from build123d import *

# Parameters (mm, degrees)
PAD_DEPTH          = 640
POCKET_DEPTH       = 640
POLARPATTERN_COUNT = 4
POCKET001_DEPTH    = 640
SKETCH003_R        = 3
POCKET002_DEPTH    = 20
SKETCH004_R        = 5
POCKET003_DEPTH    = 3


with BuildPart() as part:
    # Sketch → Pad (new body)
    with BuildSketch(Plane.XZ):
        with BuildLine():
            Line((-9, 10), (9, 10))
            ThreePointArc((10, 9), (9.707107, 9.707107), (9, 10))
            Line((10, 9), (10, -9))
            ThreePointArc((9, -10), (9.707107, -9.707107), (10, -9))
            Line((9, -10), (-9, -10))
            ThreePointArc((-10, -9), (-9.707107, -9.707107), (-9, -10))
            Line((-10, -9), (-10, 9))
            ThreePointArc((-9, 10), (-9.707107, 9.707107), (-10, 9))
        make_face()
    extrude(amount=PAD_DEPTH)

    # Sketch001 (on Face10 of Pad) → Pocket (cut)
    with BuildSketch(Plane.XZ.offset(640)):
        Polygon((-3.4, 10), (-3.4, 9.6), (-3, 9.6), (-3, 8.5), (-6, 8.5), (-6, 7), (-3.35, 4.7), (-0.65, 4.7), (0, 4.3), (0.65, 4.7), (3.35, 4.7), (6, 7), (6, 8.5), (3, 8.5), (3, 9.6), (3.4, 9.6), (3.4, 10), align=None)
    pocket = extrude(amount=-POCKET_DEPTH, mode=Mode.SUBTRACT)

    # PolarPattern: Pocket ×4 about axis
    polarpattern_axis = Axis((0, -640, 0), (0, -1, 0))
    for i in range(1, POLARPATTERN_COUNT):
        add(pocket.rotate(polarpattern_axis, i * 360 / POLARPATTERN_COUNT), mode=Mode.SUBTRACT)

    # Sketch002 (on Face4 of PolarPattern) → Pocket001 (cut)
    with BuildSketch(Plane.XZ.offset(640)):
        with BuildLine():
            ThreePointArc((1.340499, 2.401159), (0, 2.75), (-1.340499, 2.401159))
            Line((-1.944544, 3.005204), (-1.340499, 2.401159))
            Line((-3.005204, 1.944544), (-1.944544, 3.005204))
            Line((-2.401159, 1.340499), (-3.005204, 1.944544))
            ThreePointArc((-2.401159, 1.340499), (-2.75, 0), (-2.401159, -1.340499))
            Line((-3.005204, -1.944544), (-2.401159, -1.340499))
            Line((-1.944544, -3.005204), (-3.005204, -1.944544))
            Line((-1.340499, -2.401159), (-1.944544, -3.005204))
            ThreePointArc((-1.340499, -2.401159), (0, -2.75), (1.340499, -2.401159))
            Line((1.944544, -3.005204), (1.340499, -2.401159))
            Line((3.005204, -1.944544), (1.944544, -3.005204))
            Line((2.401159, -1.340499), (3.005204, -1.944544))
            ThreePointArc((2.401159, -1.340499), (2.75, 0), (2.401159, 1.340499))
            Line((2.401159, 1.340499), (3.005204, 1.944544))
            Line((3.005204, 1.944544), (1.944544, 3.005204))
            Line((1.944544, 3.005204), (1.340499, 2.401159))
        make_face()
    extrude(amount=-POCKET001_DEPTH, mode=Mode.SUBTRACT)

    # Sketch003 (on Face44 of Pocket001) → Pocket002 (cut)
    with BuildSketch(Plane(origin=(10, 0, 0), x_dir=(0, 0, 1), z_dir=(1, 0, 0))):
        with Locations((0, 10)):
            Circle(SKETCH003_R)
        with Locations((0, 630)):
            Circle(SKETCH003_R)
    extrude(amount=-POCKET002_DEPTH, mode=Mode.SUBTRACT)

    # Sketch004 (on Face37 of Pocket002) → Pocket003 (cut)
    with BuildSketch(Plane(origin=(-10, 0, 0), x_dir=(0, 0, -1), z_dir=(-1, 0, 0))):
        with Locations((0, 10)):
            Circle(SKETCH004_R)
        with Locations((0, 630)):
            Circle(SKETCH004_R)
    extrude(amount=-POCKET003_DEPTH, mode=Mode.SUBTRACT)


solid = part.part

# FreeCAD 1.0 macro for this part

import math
import FreeCAD as App
import Part
import Sketcher
from FreeCAD import Vector
Q = App.Units.Quantity


def add_polygon(sketch, points):
    """Adds a closed chain of lines whose ends are joined by coincident constraints."""
    first, n = sketch.GeometryCount, len(points)
    for a, b in zip(points, points[1:] + points[:1]):
        sketch.addGeometry(Part.LineSegment(App.Vector(*a, 0), App.Vector(*b, 0)), False)
    for i in range(n):
        sketch.addConstraint(Sketcher.Constraint("Coincident", first + i, 2, first + (i + 1) % n, 1))

doc = App.newDocument("Part")
body = doc.addObject("PartDesign::Body", "Body")

# Sketch on XZ plane
sketch1 = doc.addObject("Sketcher::SketchObject", "Sketch")
body.addObject(sketch1)
sketch1.AttachmentSupport = (doc.XZ_Plane, [""])
sketch1.MapMode = "FlatFace"
sketch1.addGeometry([
    Part.LineSegment(Vector(9, 10, 0), Vector(-9, 10, 0)),  # 0
    Part.ArcOfCircle(Part.Circle(Vector(-9.000001, 9.000001, 0), Vector(0, 0, 1), 0.999999), math.radians(89.999957), math.radians(180.000043)),  # 1
    Part.LineSegment(Vector(-10, 9, 0), Vector(-10, -9, 0)),  # 2
    Part.ArcOfCircle(Part.Circle(Vector(-9.000001, -9.000001, 0), Vector(0, 0, 1), 0.999999), math.radians(179.999957), math.radians(270.000043)),  # 3
    Part.LineSegment(Vector(-9, -10, 0), Vector(9, -10, 0)),  # 4
    Part.ArcOfCircle(Part.Circle(Vector(9.000001, -9.000001, 0), Vector(0, 0, 1), 0.999999), math.radians(-90.000043), math.radians(0.000043)),  # 5
    Part.LineSegment(Vector(10, -9, 0), Vector(10, 9, 0)),  # 6
    Part.ArcOfCircle(Part.Circle(Vector(9.000001, 9.000001, 0), Vector(0, 0, 1), 0.999999), math.radians(-0.000043), math.radians(90.000043)),  # 7
], False)
sketch1.addConstraint([
    Sketcher.Constraint("Tangent", 0, 2, 1, 1),
    Sketcher.Constraint("Tangent", 1, 2, 2, 1),
    Sketcher.Constraint("Tangent", 2, 2, 3, 1),
    Sketcher.Constraint("Tangent", 3, 2, 4, 1),
    Sketcher.Constraint("Tangent", 4, 2, 5, 1),
    Sketcher.Constraint("Tangent", 5, 2, 6, 1),
    Sketcher.Constraint("Tangent", 6, 2, 7, 1),
    Sketcher.Constraint("Tangent", 7, 2, 0, 1),
    Sketcher.Constraint("Horizontal", 0),
    Sketcher.Constraint("Vertical", 2),
    Sketcher.Constraint("Horizontal", 4),
    Sketcher.Constraint("Vertical", 6),
    Sketcher.Constraint("Equal", 1, 3),
    Sketcher.Constraint("Equal", 3, 5),
    Sketcher.Constraint("Equal", 5, 7),
    Sketcher.Constraint("Symmetric", 1, 3, 5, 3, -1, 1),
    Sketcher.Constraint("Equal", 4, 2),
    Sketcher.Constraint("Radius", 1, Q("0.999999 mm")),
    Sketcher.Constraint("DistanceX", 0, 2, 0, 1, Q("18 mm")),
])
pad1 = doc.addObject("PartDesign::Pad", "Pad")
body.addObject(pad1)
pad1.Profile = sketch1
pad1.Length = 640

# Sketch on XZ plane
sketch2 = doc.addObject("Sketcher::SketchObject", "Sketch001")
body.addObject(sketch2)
sketch2.AttachmentSupport = (doc.XZ_Plane, [""])
sketch2.MapMode = "FlatFace"
sketch2.AttachmentOffset = App.Placement(Vector(0, 0, 640), App.Rotation())
add_polygon(sketch2, [(-3.4, 10), (-3.4, 9.6), (-3, 9.6), (-3, 8.5), (-6, 8.5), (-6, 7), (-3.35, 4.7), (-0.65, 4.7), (0, 4.3), (0.65, 4.7), (3.35, 4.7), (6, 7), (6, 8.5), (3, 8.5), (3, 9.6), (3.4, 9.6), (3.4, 10)])  # lines 0-16
sketch2.addConstraint([
    Sketcher.Constraint("Vertical", 0),
    Sketcher.Constraint("Horizontal", 1),
    Sketcher.Constraint("Vertical", 2),
    Sketcher.Constraint("Horizontal", 3),
    Sketcher.Constraint("Vertical", 4),
    Sketcher.Constraint("Horizontal", 6),
    Sketcher.Constraint("Horizontal", 9),
    Sketcher.Constraint("Vertical", 11),
    Sketcher.Constraint("Horizontal", 12),
    Sketcher.Constraint("Vertical", 13),
    Sketcher.Constraint("Horizontal", 14),
    Sketcher.Constraint("Vertical", 15),
    Sketcher.Constraint("Horizontal", 16),
    Sketcher.Constraint("Symmetric", 6, 2, 8, 2, -2),
    Sketcher.Constraint("Symmetric", 4, 2, 10, 2, -2),
    Sketcher.Constraint("Symmetric", 2, 2, 12, 2, -2),
    Sketcher.Constraint("Symmetric", 0, 2, 14, 2, -2),
    Sketcher.Constraint("PointOnObject", 7, 2, -2),
    Sketcher.Constraint("Equal", 6, 9),
    Sketcher.Constraint("Equal", 14, 0),
    Sketcher.Constraint("DistanceX", 3, 2, 3, 1, Q("3 mm")),
    Sketcher.Constraint("DistanceX", 1, 1, 1, 2, Q("0.4 mm")),
    Sketcher.Constraint("DistanceX", 6, 1, 6, 2, Q("2.7 mm")),
    Sketcher.Constraint("DistanceX", 16, 2, 16, 1, Q("6.8 mm")),
    Sketcher.Constraint("DistanceY", 2, 2, 2, 1, Q("1.1 mm")),
    Sketcher.Constraint("DistanceY", 4, 2, 4, 1, Q("1.5 mm")),
    Sketcher.Constraint("DistanceY", -1, 1, 4, 2, Q("7 mm")),
    Sketcher.Constraint("DistanceX", 5, 2, 8, 2, Q("4 mm")),
    Sketcher.Constraint("DistanceY", -1, 1, 5, 2, Q("4.7 mm")),
    Sketcher.Constraint("DistanceY", -1, 1, 7, 2, Q("4.3 mm")),
])
pocket1 = doc.addObject("PartDesign::Pocket", "Pocket")
body.addObject(pocket1)
pocket1.Profile = sketch2
pocket1.Length = 640
doc.recompute()

polarpattern = doc.addObject("PartDesign::PolarPattern", "PolarPattern")
body.addObject(polarpattern)
polarpattern.Originals = [pocket1]
polarpattern.Axis = (doc.Y_Axis, [""])
polarpattern.Angle = 360
polarpattern.Occurrences = 4
body.Tip = polarpattern

# Sketch on XZ plane
sketch3 = doc.addObject("Sketcher::SketchObject", "Sketch002")
body.addObject(sketch3)
sketch3.AttachmentSupport = (doc.XZ_Plane, [""])
sketch3.MapMode = "FlatFace"
sketch3.AttachmentOffset = App.Placement(Vector(0, 0, 640), App.Rotation())
sketch3.addGeometry([
    Part.ArcOfCircle(Part.Circle(Vector(0, -0.000003, 0), Vector(0, 0, 1), 2.750003), math.radians(60.826646), math.radians(119.173354)),  # 0
    Part.LineSegment(Vector(-1.340499, 2.401159, 0), Vector(-1.944544, 3.005204, 0)),  # 1
    Part.LineSegment(Vector(-1.944544, 3.005204, 0), Vector(-3.005204, 1.944544, 0)),  # 2
    Part.LineSegment(Vector(-3.005204, 1.944544, 0), Vector(-2.401159, 1.340499, 0)),  # 3
    Part.ArcOfCircle(Part.Circle(Vector(0.000003, 0, 0), Vector(0, 0, 1), 2.750003), math.radians(150.826646), math.radians(209.173354)),  # 4
    Part.LineSegment(Vector(-2.401159, -1.340499, 0), Vector(-3.005204, -1.944544, 0)),  # 5
    Part.LineSegment(Vector(-3.005204, -1.944544, 0), Vector(-1.944544, -3.005204, 0)),  # 6
    Part.LineSegment(Vector(-1.944544, -3.005204, 0), Vector(-1.340499, -2.401159, 0)),  # 7
    Part.ArcOfCircle(Part.Circle(Vector(0, 0.000003, 0), Vector(0, 0, 1), 2.750003), math.radians(-119.173354), math.radians(-60.826646)),  # 8
    Part.LineSegment(Vector(1.340499, -2.401159, 0), Vector(1.944544, -3.005204, 0)),  # 9
    Part.LineSegment(Vector(1.944544, -3.005204, 0), Vector(3.005204, -1.944544, 0)),  # 10
    Part.LineSegment(Vector(3.005204, -1.944544, 0), Vector(2.401159, -1.340499, 0)),  # 11
    Part.ArcOfCircle(Part.Circle(Vector(-0.000003, 0, 0), Vector(0, 0, 1), 2.750003), math.radians(-29.173354), math.radians(29.173354)),  # 12
    Part.LineSegment(Vector(2.401159, 1.340499, 0), Vector(3.005204, 1.944544, 0)),  # 13
    Part.LineSegment(Vector(3.005204, 1.944544, 0), Vector(1.944544, 3.005204, 0)),  # 14
    Part.LineSegment(Vector(1.944544, 3.005204, 0), Vector(1.340499, 2.401159, 0)),  # 15
], False)
sketch3.addConstraint([
    Sketcher.Constraint("Coincident", 0, 2, 1, 1),
    Sketcher.Constraint("Coincident", 1, 2, 2, 1),
    Sketcher.Constraint("Coincident", 2, 2, 3, 1),
    Sketcher.Constraint("Coincident", 3, 2, 4, 1),
    Sketcher.Constraint("Coincident", 4, 2, 5, 1),
    Sketcher.Constraint("Coincident", 5, 2, 6, 1),
    Sketcher.Constraint("Coincident", 6, 2, 7, 1),
    Sketcher.Constraint("Coincident", 7, 2, 8, 1),
    Sketcher.Constraint("Coincident", 8, 2, 9, 1),
    Sketcher.Constraint("Coincident", 9, 2, 10, 1),
    Sketcher.Constraint("Coincident", 10, 2, 11, 1),
    Sketcher.Constraint("Coincident", 11, 2, 12, 1),
    Sketcher.Constraint("Coincident", 12, 2, 13, 1),
    Sketcher.Constraint("Coincident", 13, 2, 14, 1),
    Sketcher.Constraint("Coincident", 14, 2, 15, 1),
    Sketcher.Constraint("Coincident", 15, 2, 0, 1),
    Sketcher.Constraint("Coincident", 0, 3, -1, 1),
    Sketcher.Constraint("Coincident", 4, 3, -1, 1),
    Sketcher.Constraint("Coincident", 8, 3, -1, 1),
    Sketcher.Constraint("Coincident", 12, 3, -1, 1),
    Sketcher.Constraint("Equal", 0, 4),
    Sketcher.Constraint("Equal", 4, 8),
    Sketcher.Constraint("Equal", 8, 12),
    Sketcher.Constraint("Symmetric", 1, 2, 9, 2, -1, 1),
    Sketcher.Constraint("Symmetric", 2, 2, 10, 2, -1, 1),
    Sketcher.Constraint("Symmetric", 5, 2, 13, 2, -1, 1),
    Sketcher.Constraint("Symmetric", 6, 2, 14, 2, -1, 1),
    Sketcher.Constraint("Symmetric", 6, 2, 9, 2, -2),
    Sketcher.Constraint("Symmetric", 5, 2, 10, 2, -2),
    Sketcher.Constraint("Perpendicular", 1, 2),
    Sketcher.Constraint("Perpendicular", 2, 3),
    Sketcher.Constraint("Perpendicular", 3, 5),
    Sketcher.Constraint("Perpendicular", 5, 6),
    Sketcher.Constraint("Perpendicular", 6, 7),
    Sketcher.Constraint("Perpendicular", 7, 9),
    Sketcher.Constraint("Perpendicular", 10, 11),
    Sketcher.Constraint("Perpendicular", 11, 13),
    Sketcher.Constraint("Perpendicular", 14, 15),
    Sketcher.Constraint("Equal", 1, 3),
    Sketcher.Constraint("Distance", 2, Q("1.5 mm")),
    Sketcher.Constraint("Radius", 0, Q("2.750003 mm")),
    Sketcher.Constraint("DistanceY", 8, 3, 1, 2, Q("3.005201 mm")),
])
pocket2 = doc.addObject("PartDesign::Pocket", "Pocket001")
body.addObject(pocket2)
pocket2.Profile = sketch3
pocket2.Length = 640

# Sketch on YZ plane
sketch4 = doc.addObject("Sketcher::SketchObject", "Sketch003")
body.addObject(sketch4)
sketch4.AttachmentSupport = (doc.YZ_Plane, [""])
sketch4.MapMode = "FlatFace"
sketch4.AttachmentOffset = App.Placement(Vector(0, 0, 10), App.Rotation())
sketch4.addGeometry([
    Part.Circle(Vector(-10, 0, 0), Vector(0, 0, 1), 3),
    Part.Circle(Vector(-630, 0, 0), Vector(0, 0, 1), 3),
], False)
sketch4.addConstraint([
    Sketcher.Constraint("Equal", 0, 1),
    Sketcher.Constraint("PointOnObject", 0, 3, -1),
    Sketcher.Constraint("PointOnObject", 1, 3, -1),
    Sketcher.Constraint("Diameter", 0, Q("6 mm")),
    Sketcher.Constraint("DistanceX", 0, 3, -1, 1, Q("10 mm")),
    Sketcher.Constraint("DistanceX", 1, 3, -1, 1, Q("630 mm")),
])
pocket3 = doc.addObject("PartDesign::Pocket", "Pocket002")
body.addObject(pocket3)
pocket3.Profile = sketch4
pocket3.Length = 20

# Sketch on YZ plane
sketch5 = doc.addObject("Sketcher::SketchObject", "Sketch004")
body.addObject(sketch5)
sketch5.AttachmentSupport = (doc.YZ_Plane, [""])
sketch5.MapMode = "FlatFace"
sketch5.AttachmentOffset = App.Placement(Vector(0, 0, -10), App.Rotation())
sketch5.addGeometry([
    Part.Circle(Vector(-10, 0, 0), Vector(0, 0, 1), 5),
    Part.Circle(Vector(-630, 0, 0), Vector(0, 0, 1), 5),
], False)
sketch5.addConstraint([
    Sketcher.Constraint("Equal", 0, 1),
    Sketcher.Constraint("PointOnObject", 0, 3, -1),
    Sketcher.Constraint("PointOnObject", 1, 3, -1),
    Sketcher.Constraint("Diameter", 0, Q("10 mm")),
    Sketcher.Constraint("DistanceX", 0, 3, -1, 1, Q("10 mm")),
    Sketcher.Constraint("DistanceX", 1, 3, -1, 1, Q("630 mm")),
])
pocket4 = doc.addObject("PartDesign::Pocket", "Pocket003")
body.addObject(pocket4)
pocket4.Profile = sketch5
pocket4.Length = 3
pocket4.Reversed = True

doc.recompute()
